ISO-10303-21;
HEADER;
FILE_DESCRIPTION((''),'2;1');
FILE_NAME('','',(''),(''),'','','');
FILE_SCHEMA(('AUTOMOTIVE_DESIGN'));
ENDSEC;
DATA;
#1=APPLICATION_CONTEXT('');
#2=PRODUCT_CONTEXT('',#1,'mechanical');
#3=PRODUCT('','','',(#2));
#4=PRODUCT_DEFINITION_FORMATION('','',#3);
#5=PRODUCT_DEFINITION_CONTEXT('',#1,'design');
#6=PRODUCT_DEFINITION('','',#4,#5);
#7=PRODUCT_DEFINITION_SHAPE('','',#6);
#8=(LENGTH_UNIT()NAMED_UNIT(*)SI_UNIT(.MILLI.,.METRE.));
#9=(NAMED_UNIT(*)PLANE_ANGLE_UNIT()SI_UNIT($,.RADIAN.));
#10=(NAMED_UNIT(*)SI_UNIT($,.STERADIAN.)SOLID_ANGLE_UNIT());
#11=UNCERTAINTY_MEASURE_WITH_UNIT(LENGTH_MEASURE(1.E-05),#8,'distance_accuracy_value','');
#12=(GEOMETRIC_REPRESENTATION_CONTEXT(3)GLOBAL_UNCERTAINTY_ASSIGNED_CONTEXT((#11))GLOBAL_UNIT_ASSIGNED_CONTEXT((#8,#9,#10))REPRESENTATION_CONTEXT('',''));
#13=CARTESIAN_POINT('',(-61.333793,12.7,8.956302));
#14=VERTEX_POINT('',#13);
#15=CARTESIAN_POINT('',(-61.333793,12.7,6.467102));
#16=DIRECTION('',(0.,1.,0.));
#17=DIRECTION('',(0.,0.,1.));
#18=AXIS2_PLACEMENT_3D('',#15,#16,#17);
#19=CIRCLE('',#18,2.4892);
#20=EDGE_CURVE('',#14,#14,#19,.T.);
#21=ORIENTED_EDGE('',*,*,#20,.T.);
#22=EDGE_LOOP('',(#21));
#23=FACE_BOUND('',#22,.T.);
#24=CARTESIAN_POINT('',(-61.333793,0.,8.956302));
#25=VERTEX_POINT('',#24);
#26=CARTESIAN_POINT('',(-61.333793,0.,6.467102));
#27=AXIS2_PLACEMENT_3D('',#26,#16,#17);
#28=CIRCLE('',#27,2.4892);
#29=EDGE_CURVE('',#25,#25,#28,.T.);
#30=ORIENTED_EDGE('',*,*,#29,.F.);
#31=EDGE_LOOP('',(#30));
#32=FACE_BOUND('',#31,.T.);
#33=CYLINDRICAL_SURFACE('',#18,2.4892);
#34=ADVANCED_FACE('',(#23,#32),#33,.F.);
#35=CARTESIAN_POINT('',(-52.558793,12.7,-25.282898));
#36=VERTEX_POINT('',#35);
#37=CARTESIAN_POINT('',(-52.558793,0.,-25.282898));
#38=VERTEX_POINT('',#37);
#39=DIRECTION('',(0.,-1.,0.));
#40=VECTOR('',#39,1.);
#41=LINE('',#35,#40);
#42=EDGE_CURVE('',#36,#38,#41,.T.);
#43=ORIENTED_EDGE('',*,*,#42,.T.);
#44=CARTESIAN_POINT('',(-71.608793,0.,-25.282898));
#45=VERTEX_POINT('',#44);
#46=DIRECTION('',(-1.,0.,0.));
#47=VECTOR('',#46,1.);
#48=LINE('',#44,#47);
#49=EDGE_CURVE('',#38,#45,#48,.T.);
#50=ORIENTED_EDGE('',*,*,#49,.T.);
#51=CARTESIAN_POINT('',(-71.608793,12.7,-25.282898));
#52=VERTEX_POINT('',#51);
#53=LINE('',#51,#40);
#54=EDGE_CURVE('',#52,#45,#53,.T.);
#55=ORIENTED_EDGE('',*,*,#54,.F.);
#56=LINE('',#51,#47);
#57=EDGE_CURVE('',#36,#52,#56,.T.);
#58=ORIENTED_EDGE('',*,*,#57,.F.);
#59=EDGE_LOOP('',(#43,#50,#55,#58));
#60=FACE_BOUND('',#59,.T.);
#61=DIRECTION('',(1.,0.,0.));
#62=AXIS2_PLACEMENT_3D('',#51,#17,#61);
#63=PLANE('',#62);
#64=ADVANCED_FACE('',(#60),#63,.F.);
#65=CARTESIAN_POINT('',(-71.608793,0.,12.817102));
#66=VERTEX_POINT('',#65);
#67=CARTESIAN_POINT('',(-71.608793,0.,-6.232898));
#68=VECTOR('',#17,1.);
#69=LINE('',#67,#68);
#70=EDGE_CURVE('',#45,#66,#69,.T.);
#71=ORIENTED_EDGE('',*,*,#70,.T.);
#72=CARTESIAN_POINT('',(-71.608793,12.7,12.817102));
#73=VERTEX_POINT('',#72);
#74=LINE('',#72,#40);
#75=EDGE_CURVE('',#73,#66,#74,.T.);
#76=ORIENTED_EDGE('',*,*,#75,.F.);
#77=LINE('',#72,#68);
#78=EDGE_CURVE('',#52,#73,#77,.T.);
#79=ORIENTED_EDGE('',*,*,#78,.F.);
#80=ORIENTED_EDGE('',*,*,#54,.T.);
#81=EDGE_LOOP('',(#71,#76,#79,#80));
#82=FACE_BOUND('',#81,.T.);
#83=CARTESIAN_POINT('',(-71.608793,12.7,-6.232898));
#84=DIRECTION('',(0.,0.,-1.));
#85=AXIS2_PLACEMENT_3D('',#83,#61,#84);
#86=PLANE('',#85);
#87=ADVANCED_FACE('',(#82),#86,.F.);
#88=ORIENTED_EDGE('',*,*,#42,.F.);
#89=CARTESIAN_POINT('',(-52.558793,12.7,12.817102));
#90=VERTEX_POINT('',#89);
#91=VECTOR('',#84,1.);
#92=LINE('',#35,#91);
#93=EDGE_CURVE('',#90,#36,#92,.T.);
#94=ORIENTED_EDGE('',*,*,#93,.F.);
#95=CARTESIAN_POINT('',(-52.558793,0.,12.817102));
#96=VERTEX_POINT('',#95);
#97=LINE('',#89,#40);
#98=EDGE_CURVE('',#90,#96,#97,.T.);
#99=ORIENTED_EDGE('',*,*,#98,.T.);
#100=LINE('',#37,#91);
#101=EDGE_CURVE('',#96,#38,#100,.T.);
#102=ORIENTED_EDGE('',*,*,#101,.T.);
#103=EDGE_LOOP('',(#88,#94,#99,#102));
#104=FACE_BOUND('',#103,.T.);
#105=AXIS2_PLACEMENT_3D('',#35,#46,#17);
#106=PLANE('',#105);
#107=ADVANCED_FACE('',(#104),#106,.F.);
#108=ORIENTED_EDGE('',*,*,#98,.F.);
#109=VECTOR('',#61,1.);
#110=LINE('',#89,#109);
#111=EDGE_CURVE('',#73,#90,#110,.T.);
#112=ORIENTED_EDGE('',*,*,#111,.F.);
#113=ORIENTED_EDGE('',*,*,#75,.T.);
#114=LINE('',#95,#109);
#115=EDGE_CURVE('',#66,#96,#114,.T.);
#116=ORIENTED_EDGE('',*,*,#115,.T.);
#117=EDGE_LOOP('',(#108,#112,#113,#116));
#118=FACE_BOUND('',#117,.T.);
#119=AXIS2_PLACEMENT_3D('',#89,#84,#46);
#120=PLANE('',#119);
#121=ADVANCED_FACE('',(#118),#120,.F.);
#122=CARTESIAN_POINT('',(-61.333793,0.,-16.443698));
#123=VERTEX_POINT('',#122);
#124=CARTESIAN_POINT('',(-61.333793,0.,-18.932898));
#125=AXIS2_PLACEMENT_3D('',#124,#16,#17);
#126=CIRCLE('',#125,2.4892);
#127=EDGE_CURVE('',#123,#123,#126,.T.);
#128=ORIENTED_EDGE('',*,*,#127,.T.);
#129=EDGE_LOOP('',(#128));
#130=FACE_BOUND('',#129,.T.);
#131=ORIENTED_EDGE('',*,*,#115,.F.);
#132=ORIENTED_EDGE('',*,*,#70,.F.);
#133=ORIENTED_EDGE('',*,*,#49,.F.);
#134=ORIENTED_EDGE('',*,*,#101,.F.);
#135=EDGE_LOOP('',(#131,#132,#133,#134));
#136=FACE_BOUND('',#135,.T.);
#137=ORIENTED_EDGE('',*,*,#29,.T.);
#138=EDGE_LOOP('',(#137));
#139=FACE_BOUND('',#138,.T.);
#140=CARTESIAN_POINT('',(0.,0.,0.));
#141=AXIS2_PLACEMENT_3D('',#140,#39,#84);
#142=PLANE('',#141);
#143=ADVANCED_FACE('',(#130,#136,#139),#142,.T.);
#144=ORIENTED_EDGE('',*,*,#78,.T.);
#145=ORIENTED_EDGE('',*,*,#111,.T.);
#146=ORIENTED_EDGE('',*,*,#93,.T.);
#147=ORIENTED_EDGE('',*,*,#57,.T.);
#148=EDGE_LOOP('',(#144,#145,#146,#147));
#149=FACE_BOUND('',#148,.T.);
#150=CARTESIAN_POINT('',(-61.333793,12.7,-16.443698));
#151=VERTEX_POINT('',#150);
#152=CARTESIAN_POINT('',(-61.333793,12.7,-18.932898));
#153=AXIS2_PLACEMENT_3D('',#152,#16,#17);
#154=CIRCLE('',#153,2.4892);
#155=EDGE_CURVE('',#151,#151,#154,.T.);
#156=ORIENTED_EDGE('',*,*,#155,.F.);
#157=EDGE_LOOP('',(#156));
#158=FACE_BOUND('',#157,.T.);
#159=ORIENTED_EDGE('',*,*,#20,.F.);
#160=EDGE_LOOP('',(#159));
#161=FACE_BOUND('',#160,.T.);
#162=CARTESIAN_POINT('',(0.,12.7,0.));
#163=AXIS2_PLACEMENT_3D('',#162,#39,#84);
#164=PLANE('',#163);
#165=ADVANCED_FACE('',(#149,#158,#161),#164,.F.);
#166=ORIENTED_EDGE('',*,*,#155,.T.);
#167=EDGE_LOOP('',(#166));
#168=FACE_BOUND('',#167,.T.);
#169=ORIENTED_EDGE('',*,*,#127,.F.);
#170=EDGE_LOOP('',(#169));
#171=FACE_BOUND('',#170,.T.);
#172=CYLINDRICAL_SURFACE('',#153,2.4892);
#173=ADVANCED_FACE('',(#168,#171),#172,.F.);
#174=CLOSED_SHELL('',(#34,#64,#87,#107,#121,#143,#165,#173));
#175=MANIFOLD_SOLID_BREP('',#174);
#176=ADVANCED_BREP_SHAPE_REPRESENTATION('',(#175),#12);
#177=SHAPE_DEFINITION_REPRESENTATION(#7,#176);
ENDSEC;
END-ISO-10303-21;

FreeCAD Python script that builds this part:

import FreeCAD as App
import Part
import Sketcher
from FreeCAD import Vector
Q = App.Units.Quantity

doc = App.newDocument("Part")
params = doc.addObject("Spreadsheet::Sheet", "Params")
for row, (alias, value) in enumerate([
    ("sketch1_height", "1.5 in"),
    ("sketch1_width", "0.75 in"),
    ("pad1_length", "0.5 in"),
    ("sketch2_diameter", "0.196 in"),
    ("hole_diameter", "0.196 in"),
], start=1):
    params.set(f"A{row}", alias)
    params.set(f"B{row}", "=" + value)
    params.setAlias(f"B{row}", alias)

body = doc.addObject("PartDesign::Body", "Body")

# Sketch on XZ plane
sketch1 = doc.addObject("Sketcher::SketchObject", "Sketch")
body.addObject(sketch1)
sketch1.AttachmentSupport = (doc.XZ_Plane, [""])
sketch1.MapMode = "FlatFace"
sketch1.addGeometry(Part.LineSegment(Vector(-71.608793, -25.282898, 0), Vector(-71.608793, 12.817102, 0)), False)
sketch1.addGeometry(Part.LineSegment(Vector(-71.608793, 12.817102, 0), Vector(-52.558793, 12.817102, 0)), False)
sketch1.addGeometry(Part.LineSegment(Vector(-52.558793, 12.817102, 0), Vector(-52.558793, -25.282898, 0)), False)
sketch1.addGeometry(Part.LineSegment(Vector(-52.558793, -25.282898, 0), Vector(-71.608793, -25.282898, 0)), False)
sketch1.addConstraint(Sketcher.Constraint("Coincident", 0, 2, 1, 1))
sketch1.addConstraint(Sketcher.Constraint("Coincident", 1, 2, 2, 1))
sketch1.addConstraint(Sketcher.Constraint("Coincident", 2, 2, 3, 1))
sketch1.addConstraint(Sketcher.Constraint("Coincident", 3, 2, 0, 1))
sketch1.addConstraint(Sketcher.Constraint("Vertical", 0))
sketch1.addConstraint(Sketcher.Constraint("Horizontal", 1))
sketch1.addConstraint(Sketcher.Constraint("Vertical", 2))
sketch1.addConstraint(Sketcher.Constraint("Horizontal", 3))
sketch1.addConstraint(Sketcher.Constraint("DistanceY", 0, 1, 0, 2, Q("1.5 in")))
sketch1.addConstraint(Sketcher.Constraint("DistanceX", 1, 1, 1, 2, Q("0.75 in")))
sketch1.addConstraint(Sketcher.Constraint("DistanceY", -1, 1, 0, 2, Q("12.817102 mm")))
sketch1.addConstraint(Sketcher.Constraint("DistanceX", 0, 2, -1, 1, Q("71.608793 mm")))
sketch1.setExpression("Constraints[8]", "Params.sketch1_height")
sketch1.setExpression("Constraints[9]", "Params.sketch1_width")
pad1 = doc.addObject("PartDesign::Pad", "Pad")
body.addObject(pad1)
pad1.Profile = sketch1
pad1.setExpression("Length", "Params.pad1_length")
pad1.Reversed = True

# Sketch on XZ plane
sketch2 = doc.addObject("Sketcher::SketchObject", "Sketch001")
body.addObject(sketch2)
sketch2.AttachmentSupport = (doc.XZ_Plane, [""])
sketch2.MapMode = "FlatFace"
sketch2.AttachmentOffset = App.Placement(Vector(0, 0, -0.5 * 25.4), App.Rotation())
sketch2.addGeometry(Part.Circle(Vector(-61.333793, -18.932898, 0), Vector(0, 0, 1), 2.4892), False)
sketch2.addGeometry(Part.Circle(Vector(-61.333793, 6.467102, 0), Vector(0, 0, 1), 2.4892), False)
sketch2.addConstraint(Sketcher.Constraint("Equal", 0, 1))
sketch2.addConstraint(Sketcher.Constraint("Vertical", 0, 3, 1, 3))
sketch2.addConstraint(Sketcher.Constraint("Diameter", 0, Q("0.196 in")))
sketch2.addConstraint(Sketcher.Constraint("DistanceY", 0, 3, 1, 3, Q("1 in")))
sketch2.addConstraint(Sketcher.Constraint("DistanceY", 0, 3, -1, 1, Q("18.932898 mm")))
sketch2.addConstraint(Sketcher.Constraint("DistanceX", 0, 3, -1, 1, Q("61.333793 mm")))
sketch2.setExpression("Constraints[2]", "Params.sketch2_diameter")
doc.recompute()
hole = doc.addObject("PartDesign::Hole", "Hole")
body.addObject(hole)
hole.Profile = sketch2
hole.ThreadType = "None"
hole.setExpression("Diameter", "Params.hole_diameter")
hole.DepthType = "ThroughAll"
hole.Reversed = True

doc.recompute()
